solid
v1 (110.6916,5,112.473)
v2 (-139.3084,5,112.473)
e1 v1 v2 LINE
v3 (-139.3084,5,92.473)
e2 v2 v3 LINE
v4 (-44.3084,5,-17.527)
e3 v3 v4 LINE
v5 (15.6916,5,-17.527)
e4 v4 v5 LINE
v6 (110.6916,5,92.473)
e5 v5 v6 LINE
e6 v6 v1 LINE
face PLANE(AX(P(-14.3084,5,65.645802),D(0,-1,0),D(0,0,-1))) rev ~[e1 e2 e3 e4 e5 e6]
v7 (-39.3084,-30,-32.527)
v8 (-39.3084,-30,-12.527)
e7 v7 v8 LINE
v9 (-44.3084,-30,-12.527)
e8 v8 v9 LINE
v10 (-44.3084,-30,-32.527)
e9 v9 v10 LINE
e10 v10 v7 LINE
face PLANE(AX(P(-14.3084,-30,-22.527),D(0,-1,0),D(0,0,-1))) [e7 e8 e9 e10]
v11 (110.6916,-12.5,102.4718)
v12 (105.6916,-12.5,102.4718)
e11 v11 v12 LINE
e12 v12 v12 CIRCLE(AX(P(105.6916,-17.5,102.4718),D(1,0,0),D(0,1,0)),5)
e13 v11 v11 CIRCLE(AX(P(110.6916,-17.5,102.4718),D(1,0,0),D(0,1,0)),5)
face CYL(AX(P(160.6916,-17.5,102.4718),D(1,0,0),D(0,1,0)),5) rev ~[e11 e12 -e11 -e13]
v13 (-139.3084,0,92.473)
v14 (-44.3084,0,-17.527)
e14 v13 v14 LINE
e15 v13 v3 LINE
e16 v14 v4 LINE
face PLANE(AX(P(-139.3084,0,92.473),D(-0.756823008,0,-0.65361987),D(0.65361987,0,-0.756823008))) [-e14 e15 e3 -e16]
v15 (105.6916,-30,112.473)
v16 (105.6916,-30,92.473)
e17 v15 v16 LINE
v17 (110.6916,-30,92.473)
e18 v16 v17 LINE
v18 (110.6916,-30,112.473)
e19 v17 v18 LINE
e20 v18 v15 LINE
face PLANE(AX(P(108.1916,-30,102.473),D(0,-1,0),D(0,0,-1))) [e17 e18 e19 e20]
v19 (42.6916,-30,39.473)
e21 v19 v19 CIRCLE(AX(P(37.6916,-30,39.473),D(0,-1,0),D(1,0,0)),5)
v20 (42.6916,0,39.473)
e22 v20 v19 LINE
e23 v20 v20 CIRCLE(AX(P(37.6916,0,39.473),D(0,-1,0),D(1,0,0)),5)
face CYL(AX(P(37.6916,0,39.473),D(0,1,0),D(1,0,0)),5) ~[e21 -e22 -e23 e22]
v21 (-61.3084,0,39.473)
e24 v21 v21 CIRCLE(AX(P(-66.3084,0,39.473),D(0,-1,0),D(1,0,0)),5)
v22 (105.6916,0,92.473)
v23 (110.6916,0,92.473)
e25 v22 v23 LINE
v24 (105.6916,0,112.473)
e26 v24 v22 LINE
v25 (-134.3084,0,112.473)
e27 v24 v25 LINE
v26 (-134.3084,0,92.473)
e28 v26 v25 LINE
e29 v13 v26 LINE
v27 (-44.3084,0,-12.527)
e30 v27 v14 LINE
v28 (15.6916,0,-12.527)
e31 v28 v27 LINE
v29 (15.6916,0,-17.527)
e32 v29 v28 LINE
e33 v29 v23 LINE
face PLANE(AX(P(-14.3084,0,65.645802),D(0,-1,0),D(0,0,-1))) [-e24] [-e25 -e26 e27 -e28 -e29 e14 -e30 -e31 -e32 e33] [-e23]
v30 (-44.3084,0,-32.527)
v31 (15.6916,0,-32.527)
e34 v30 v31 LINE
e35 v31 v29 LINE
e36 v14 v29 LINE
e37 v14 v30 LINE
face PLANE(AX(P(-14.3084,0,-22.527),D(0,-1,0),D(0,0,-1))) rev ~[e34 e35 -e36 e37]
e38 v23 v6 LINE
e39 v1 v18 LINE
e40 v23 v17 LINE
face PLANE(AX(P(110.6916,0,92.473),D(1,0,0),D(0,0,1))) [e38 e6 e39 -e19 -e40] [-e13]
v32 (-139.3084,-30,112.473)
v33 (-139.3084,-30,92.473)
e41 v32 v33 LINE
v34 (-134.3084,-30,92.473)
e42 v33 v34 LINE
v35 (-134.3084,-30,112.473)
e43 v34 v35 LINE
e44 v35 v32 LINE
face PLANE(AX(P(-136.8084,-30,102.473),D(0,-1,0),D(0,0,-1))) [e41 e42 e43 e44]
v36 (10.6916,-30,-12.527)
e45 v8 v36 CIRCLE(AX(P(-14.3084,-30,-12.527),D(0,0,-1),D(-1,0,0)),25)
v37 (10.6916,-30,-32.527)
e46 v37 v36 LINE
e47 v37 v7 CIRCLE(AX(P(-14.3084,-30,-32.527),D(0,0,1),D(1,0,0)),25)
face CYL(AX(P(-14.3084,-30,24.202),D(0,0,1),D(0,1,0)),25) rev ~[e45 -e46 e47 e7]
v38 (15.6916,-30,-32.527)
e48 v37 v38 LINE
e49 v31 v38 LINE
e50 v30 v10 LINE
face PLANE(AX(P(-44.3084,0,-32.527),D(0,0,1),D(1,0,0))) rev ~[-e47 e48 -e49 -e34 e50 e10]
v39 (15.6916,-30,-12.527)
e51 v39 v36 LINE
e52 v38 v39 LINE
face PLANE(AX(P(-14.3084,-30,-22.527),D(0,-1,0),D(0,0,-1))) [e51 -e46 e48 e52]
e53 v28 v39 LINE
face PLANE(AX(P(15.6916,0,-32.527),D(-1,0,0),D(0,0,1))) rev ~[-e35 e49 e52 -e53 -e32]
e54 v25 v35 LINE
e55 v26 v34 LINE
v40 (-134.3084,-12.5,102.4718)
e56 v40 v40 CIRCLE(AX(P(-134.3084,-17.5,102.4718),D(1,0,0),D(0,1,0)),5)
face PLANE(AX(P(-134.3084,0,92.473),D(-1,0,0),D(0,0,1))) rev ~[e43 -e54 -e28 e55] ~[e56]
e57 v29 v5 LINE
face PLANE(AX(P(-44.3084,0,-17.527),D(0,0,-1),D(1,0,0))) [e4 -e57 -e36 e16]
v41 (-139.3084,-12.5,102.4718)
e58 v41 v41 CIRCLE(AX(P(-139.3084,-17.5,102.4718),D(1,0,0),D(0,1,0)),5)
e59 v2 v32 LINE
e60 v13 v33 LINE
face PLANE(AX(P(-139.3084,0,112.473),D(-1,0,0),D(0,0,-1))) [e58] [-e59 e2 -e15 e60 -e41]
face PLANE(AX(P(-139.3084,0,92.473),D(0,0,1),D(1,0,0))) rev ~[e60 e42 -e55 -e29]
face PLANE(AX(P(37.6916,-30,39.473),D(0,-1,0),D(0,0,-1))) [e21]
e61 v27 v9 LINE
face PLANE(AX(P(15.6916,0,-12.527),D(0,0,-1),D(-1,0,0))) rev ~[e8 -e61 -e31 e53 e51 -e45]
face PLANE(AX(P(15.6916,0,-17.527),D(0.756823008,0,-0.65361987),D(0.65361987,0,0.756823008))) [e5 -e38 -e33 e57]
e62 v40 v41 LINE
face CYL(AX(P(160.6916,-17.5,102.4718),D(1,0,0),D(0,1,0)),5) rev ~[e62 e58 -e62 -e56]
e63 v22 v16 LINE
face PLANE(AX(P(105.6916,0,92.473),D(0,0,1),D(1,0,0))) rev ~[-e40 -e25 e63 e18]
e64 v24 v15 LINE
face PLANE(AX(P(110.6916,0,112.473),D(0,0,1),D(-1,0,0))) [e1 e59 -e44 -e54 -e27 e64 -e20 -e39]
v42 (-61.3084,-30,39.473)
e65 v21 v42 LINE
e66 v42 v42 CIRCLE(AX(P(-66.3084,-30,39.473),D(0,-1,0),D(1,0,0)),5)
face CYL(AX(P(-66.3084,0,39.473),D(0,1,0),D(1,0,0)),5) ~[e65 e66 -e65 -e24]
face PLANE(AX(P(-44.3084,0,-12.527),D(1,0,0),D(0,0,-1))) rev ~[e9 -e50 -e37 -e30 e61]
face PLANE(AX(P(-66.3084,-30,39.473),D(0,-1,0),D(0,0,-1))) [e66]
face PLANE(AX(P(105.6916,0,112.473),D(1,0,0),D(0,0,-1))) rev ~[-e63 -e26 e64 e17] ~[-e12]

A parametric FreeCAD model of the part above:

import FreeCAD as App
import Part
import Sketcher

V = App.Vector
Q = App.Units.Quantity

doc = App.newDocument("Part")
params = doc.addObject("Spreadsheet::Sheet", "Params")
for row, (alias, value) in enumerate([
    ("sketch1_width", "250 mm"),
    ("sketch1_width2", "60 mm"),
    ("sketch1_height", "20 mm"),
    ("pad1_length", "5 mm"),
    ("sketch2_diameter", "10 mm"),
    ("sketch2_width", "5 mm"),
    ("sketch2_height", "20 mm"),
    ("pad2_length", "30 mm"),
    ("sketch3_diameter", "50 mm"),
    ("sketch4_diameter", "10 mm"),
], start=1):
    params.set(f"A{row}", alias)
    params.set(f"B{row}", "=" + value)
    params.setAlias(f"B{row}", alias)

body = doc.addObject("PartDesign::Body", "Body")

# Sketch on XZ plane
sketch1 = body.newObject("Sketcher::SketchObject", "Sketch")
sketch1.AttachmentSupport = (doc.getObject("XZ_Plane"), [""])
sketch1.MapMode = "FlatFace"
sketch1.addGeometry(Part.LineSegment(V(16, -18, 0), V(111, 92, 0)), False)
sketch1.addGeometry(Part.LineSegment(V(111, 92, 0), V(111, 112, 0)), False)
sketch1.addGeometry(Part.LineSegment(V(111, 112, 0), V(-139, 112, 0)), False)
sketch1.addGeometry(Part.LineSegment(V(-139, 112, 0), V(-139, 92, 0)), False)
sketch1.addGeometry(Part.LineSegment(V(-139, 92, 0), V(-44, -18, 0)), False)
sketch1.addGeometry(Part.LineSegment(V(-44, -18, 0), V(16, -18, 0)), False)
sketch1.addConstraint(Sketcher.Constraint("Coincident", 0, 2, 1, 1))
sketch1.addConstraint(Sketcher.Constraint("Coincident", 1, 2, 2, 1))
sketch1.addConstraint(Sketcher.Constraint("Coincident", 2, 2, 3, 1))
sketch1.addConstraint(Sketcher.Constraint("Coincident", 3, 2, 4, 1))
sketch1.addConstraint(Sketcher.Constraint("Coincident", 4, 2, 5, 1))
sketch1.addConstraint(Sketcher.Constraint("Coincident", 5, 2, 0, 1))
sketch1.addConstraint(Sketcher.Constraint("Vertical", 1))
sketch1.addConstraint(Sketcher.Constraint("Horizontal", 2))
sketch1.addConstraint(Sketcher.Constraint("Vertical", 3))
sketch1.addConstraint(Sketcher.Constraint("Horizontal", 5))
sketch1.addConstraint(Sketcher.Constraint("Horizontal", 0, 2, 3, 2))
sketch1.addConstraint(Sketcher.Constraint("Equal", 0, 4))
sketch1.addConstraint(Sketcher.Constraint("DistanceX", 2, 2, 2, 1, Q("250 mm")))
sketch1.addConstraint(Sketcher.Constraint("DistanceX", 5, 1, 5, 2, Q("60 mm")))
sketch1.addConstraint(Sketcher.Constraint("DistanceY", 1, 1, 1, 2, Q("20 mm")))
sketch1.addConstraint(Sketcher.Constraint("DistanceY", 4, 2, 3, 2, Q("110 mm")))
sketch1.addConstraint(Sketcher.Constraint("DistanceX", -1, 1, 0, 2, Q("110.6916 mm")))
sketch1.addConstraint(Sketcher.Constraint("DistanceY", -1, 1, 0, 2, Q("92.473 mm")))
sketch1.setExpression("Constraints[12]", "Params.sketch1_width")
sketch1.setExpression("Constraints[13]", "Params.sketch1_width2")
sketch1.setExpression("Constraints[14]", "Params.sketch1_height")
pad1 = body.newObject("PartDesign::Pad", "Pad")
pad1.Profile = sketch1
pad1.setExpression("Length", "Params.pad1_length")
pad1.Reversed = True

# Sketch on XZ plane
sketch2 = body.newObject("Sketcher::SketchObject", "Sketch001")
sketch2.AttachmentSupport = (doc.getObject("XZ_Plane"), [""])
sketch2.MapMode = "FlatFace"
sketch2.addGeometry(Part.LineSegment(V(106, 112, 0), V(106, 92, 0)), False)
sketch2.addGeometry(Part.LineSegment(V(106, 92, 0), V(111, 92, 0)), False)
sketch2.addGeometry(Part.LineSegment(V(111, 92, 0), V(111, 112, 0)), False)
sketch2.addGeometry(Part.LineSegment(V(111, 112, 0), V(106, 112, 0)), False)
sketch2.addGeometry(Part.LineSegment(V(-44, -13, 0), V(-44, -33, 0)), False)
sketch2.addGeometry(Part.LineSegment(V(-44, -33, 0), V(16, -33, 0)), False)
sketch2.addGeometry(Part.LineSegment(V(16, -33, 0), V(16, -13, 0)), False)
sketch2.addGeometry(Part.LineSegment(V(16, -13, 0), V(-44, -13, 0)), False)
sketch2.addGeometry(Part.Circle(V(-66, 39, 0), V(0, 0, 1), 5), False)
sketch2.addGeometry(Part.Circle(V(38, 39, 0), V(0, 0, 1), 5), False)
sketch2.addGeometry(Part.LineSegment(V(-139, 112, 0), V(-139, 92, 0)), False)
sketch2.addGeometry(Part.LineSegment(V(-139, 92, 0), V(-134, 92, 0)), False)
sketch2.addGeometry(Part.LineSegment(V(-134, 92, 0), V(-134, 112, 0)), False)
sketch2.addGeometry(Part.LineSegment(V(-134, 112, 0), V(-139, 112, 0)), False)
sketch2.addConstraint(Sketcher.Constraint("Coincident", 0, 2, 1, 1))
sketch2.addConstraint(Sketcher.Constraint("Coincident", 1, 2, 2, 1))
sketch2.addConstraint(Sketcher.Constraint("Coincident", 2, 2, 3, 1))
sketch2.addConstraint(Sketcher.Constraint("Coincident", 3, 2, 0, 1))
sketch2.addConstraint(Sketcher.Constraint("Coincident", 4, 2, 5, 1))
sketch2.addConstraint(Sketcher.Constraint("Coincident", 5, 2, 6, 1))
sketch2.addConstraint(Sketcher.Constraint("Coincident", 6, 2, 7, 1))
sketch2.addConstraint(Sketcher.Constraint("Coincident", 7, 2, 4, 1))
sketch2.addConstraint(Sketcher.Constraint("Coincident", 10, 2, 11, 1))
sketch2.addConstraint(Sketcher.Constraint("Coincident", 11, 2, 12, 1))
sketch2.addConstraint(Sketcher.Constraint("Coincident", 12, 2, 13, 1))
sketch2.addConstraint(Sketcher.Constraint("Coincident", 13, 2, 10, 1))
sketch2.addConstraint(Sketcher.Constraint("Vertical", 0))
sketch2.addConstraint(Sketcher.Constraint("Horizontal", 1))
sketch2.addConstraint(Sketcher.Constraint("Vertical", 2))
sketch2.addConstraint(Sketcher.Constraint("Horizontal", 3))
sketch2.addConstraint(Sketcher.Constraint("Vertical", 4))
sketch2.addConstraint(Sketcher.Constraint("Horizontal", 5))
sketch2.addConstraint(Sketcher.Constraint("Vertical", 6))
sketch2.addConstraint(Sketcher.Constraint("Horizontal", 7))
sketch2.addConstraint(Sketcher.Constraint("Vertical", 10))
sketch2.addConstraint(Sketcher.Constraint("Horizontal", 11))
sketch2.addConstraint(Sketcher.Constraint("Vertical", 12))
sketch2.addConstraint(Sketcher.Constraint("Horizontal", 13))
sketch2.addConstraint(Sketcher.Constraint("Equal", 8, 9))
sketch2.addConstraint(Sketcher.Constraint("Horizontal", 8, 3, 9, 3))
sketch2.addConstraint(Sketcher.Constraint("Horizontal", 1, 2, 10, 2))
sketch2.addConstraint(Sketcher.Constraint("Horizontal", 3, 2, 12, 2))
sketch2.addConstraint(Sketcher.Constraint("Equal", 3, 11))
sketch2.addConstraint(Sketcher.Constraint("Equal", 2, 4))
sketch2.addConstraint(Sketcher.Constraint("Diameter", 8, Q("10 mm")))
sketch2.addConstraint(Sketcher.Constraint("DistanceX", 4, 2, 0, 2, Q("150 mm")))
sketch2.addConstraint(Sketcher.Constraint("DistanceY", 4, 2, 3, 2, Q("145 mm")))
sketch2.addConstraint(Sketcher.Constraint("DistanceX", 5, 2, 1, 2, Q("95 mm")))
sketch2.addConstraint(Sketcher.Constraint("DistanceX", 10, 2, 7, 2, Q("95 mm")))
sketch2.addConstraint(Sketcher.Constraint("DistanceX", 1, 1, 1, 2, Q("5 mm")))
sketch2.addConstraint(Sketcher.Constraint("DistanceY", 0, 2, 0, 1, Q("20 mm")))
sketch2.addConstraint(Sketcher.Constraint("DistanceX", 8, 3, 9, 3, Q("104 mm")))
sketch2.addConstraint(Sketcher.Constraint("DistanceX", 9, 3, 0, 2, Q("68 mm")))
sketch2.addConstraint(Sketcher.Constraint("DistanceY", 9, 3, 0, 2, Q("53 mm")))
sketch2.addConstraint(Sketcher.Constraint("DistanceY", -1, 1, 8, 3, Q("39.473 mm")))
sketch2.addConstraint(Sketcher.Constraint("DistanceX", 8, 3, -1, 1, Q("66.3084 mm")))
sketch2.setExpression("Constraints[30]", "Params.sketch2_diameter")
sketch2.setExpression("Constraints[35]", "Params.sketch2_width")
sketch2.setExpression("Constraints[36]", "Params.sketch2_height")
pad2 = body.newObject("PartDesign::Pad", "Pad001")
pad2.Profile = sketch2
pad2.setExpression("Length", "Params.pad2_length")

# Sketch on XY plane
sketch3 = body.newObject("Sketcher::SketchObject", "Sketch002")
sketch3.AttachmentSupport = (doc.getObject("XY_Plane"), [""])
sketch3.MapMode = "FlatFace"
sketch3.AttachmentOffset = App.Placement(V(0, 0, 24.202), App.Rotation())
sketch3.addGeometry(Part.Circle(V(-14, -30, 0), V(0, 0, 1), 25), False)
sketch3.addConstraint(Sketcher.Constraint("Diameter", 0, Q("50 mm")))
sketch3.addConstraint(Sketcher.Constraint("DistanceY", 0, 3, -1, 1, Q("30 mm")))
sketch3.addConstraint(Sketcher.Constraint("DistanceX", 0, 3, -1, 1, Q("14.3084 mm")))
sketch3.setExpression("Constraints[0]", "Params.sketch3_diameter")
pocket1 = body.newObject("PartDesign::Pocket", "Pocket")
pocket1.Profile = sketch3
pocket1.Type = "ThroughAll"

# Sketch on YZ plane
sketch4 = body.newObject("Sketcher::SketchObject", "Sketch003")
sketch4.AttachmentSupport = (doc.getObject("YZ_Plane"), [""])
sketch4.MapMode = "FlatFace"
sketch4.AttachmentOffset = App.Placement(V(0, 0, 160.6916), App.Rotation())
sketch4.addGeometry(Part.Circle(V(-18, 102, 0), V(0, 0, 1), 5), False)
sketch4.addConstraint(Sketcher.Constraint("Diameter", 0, Q("10 mm")))
sketch4.addConstraint(Sketcher.Constraint("DistanceX", 0, 3, -1, 1, Q("17.5 mm")))
sketch4.addConstraint(Sketcher.Constraint("DistanceY", -1, 1, 0, 3, Q("102.4718 mm")))
sketch4.setExpression("Constraints[0]", "Params.sketch4_diameter")
pocket2 = body.newObject("PartDesign::Pocket", "Pocket001")
pocket2.Profile = sketch4
pocket2.Type = "ThroughAll"

doc.recompute()
